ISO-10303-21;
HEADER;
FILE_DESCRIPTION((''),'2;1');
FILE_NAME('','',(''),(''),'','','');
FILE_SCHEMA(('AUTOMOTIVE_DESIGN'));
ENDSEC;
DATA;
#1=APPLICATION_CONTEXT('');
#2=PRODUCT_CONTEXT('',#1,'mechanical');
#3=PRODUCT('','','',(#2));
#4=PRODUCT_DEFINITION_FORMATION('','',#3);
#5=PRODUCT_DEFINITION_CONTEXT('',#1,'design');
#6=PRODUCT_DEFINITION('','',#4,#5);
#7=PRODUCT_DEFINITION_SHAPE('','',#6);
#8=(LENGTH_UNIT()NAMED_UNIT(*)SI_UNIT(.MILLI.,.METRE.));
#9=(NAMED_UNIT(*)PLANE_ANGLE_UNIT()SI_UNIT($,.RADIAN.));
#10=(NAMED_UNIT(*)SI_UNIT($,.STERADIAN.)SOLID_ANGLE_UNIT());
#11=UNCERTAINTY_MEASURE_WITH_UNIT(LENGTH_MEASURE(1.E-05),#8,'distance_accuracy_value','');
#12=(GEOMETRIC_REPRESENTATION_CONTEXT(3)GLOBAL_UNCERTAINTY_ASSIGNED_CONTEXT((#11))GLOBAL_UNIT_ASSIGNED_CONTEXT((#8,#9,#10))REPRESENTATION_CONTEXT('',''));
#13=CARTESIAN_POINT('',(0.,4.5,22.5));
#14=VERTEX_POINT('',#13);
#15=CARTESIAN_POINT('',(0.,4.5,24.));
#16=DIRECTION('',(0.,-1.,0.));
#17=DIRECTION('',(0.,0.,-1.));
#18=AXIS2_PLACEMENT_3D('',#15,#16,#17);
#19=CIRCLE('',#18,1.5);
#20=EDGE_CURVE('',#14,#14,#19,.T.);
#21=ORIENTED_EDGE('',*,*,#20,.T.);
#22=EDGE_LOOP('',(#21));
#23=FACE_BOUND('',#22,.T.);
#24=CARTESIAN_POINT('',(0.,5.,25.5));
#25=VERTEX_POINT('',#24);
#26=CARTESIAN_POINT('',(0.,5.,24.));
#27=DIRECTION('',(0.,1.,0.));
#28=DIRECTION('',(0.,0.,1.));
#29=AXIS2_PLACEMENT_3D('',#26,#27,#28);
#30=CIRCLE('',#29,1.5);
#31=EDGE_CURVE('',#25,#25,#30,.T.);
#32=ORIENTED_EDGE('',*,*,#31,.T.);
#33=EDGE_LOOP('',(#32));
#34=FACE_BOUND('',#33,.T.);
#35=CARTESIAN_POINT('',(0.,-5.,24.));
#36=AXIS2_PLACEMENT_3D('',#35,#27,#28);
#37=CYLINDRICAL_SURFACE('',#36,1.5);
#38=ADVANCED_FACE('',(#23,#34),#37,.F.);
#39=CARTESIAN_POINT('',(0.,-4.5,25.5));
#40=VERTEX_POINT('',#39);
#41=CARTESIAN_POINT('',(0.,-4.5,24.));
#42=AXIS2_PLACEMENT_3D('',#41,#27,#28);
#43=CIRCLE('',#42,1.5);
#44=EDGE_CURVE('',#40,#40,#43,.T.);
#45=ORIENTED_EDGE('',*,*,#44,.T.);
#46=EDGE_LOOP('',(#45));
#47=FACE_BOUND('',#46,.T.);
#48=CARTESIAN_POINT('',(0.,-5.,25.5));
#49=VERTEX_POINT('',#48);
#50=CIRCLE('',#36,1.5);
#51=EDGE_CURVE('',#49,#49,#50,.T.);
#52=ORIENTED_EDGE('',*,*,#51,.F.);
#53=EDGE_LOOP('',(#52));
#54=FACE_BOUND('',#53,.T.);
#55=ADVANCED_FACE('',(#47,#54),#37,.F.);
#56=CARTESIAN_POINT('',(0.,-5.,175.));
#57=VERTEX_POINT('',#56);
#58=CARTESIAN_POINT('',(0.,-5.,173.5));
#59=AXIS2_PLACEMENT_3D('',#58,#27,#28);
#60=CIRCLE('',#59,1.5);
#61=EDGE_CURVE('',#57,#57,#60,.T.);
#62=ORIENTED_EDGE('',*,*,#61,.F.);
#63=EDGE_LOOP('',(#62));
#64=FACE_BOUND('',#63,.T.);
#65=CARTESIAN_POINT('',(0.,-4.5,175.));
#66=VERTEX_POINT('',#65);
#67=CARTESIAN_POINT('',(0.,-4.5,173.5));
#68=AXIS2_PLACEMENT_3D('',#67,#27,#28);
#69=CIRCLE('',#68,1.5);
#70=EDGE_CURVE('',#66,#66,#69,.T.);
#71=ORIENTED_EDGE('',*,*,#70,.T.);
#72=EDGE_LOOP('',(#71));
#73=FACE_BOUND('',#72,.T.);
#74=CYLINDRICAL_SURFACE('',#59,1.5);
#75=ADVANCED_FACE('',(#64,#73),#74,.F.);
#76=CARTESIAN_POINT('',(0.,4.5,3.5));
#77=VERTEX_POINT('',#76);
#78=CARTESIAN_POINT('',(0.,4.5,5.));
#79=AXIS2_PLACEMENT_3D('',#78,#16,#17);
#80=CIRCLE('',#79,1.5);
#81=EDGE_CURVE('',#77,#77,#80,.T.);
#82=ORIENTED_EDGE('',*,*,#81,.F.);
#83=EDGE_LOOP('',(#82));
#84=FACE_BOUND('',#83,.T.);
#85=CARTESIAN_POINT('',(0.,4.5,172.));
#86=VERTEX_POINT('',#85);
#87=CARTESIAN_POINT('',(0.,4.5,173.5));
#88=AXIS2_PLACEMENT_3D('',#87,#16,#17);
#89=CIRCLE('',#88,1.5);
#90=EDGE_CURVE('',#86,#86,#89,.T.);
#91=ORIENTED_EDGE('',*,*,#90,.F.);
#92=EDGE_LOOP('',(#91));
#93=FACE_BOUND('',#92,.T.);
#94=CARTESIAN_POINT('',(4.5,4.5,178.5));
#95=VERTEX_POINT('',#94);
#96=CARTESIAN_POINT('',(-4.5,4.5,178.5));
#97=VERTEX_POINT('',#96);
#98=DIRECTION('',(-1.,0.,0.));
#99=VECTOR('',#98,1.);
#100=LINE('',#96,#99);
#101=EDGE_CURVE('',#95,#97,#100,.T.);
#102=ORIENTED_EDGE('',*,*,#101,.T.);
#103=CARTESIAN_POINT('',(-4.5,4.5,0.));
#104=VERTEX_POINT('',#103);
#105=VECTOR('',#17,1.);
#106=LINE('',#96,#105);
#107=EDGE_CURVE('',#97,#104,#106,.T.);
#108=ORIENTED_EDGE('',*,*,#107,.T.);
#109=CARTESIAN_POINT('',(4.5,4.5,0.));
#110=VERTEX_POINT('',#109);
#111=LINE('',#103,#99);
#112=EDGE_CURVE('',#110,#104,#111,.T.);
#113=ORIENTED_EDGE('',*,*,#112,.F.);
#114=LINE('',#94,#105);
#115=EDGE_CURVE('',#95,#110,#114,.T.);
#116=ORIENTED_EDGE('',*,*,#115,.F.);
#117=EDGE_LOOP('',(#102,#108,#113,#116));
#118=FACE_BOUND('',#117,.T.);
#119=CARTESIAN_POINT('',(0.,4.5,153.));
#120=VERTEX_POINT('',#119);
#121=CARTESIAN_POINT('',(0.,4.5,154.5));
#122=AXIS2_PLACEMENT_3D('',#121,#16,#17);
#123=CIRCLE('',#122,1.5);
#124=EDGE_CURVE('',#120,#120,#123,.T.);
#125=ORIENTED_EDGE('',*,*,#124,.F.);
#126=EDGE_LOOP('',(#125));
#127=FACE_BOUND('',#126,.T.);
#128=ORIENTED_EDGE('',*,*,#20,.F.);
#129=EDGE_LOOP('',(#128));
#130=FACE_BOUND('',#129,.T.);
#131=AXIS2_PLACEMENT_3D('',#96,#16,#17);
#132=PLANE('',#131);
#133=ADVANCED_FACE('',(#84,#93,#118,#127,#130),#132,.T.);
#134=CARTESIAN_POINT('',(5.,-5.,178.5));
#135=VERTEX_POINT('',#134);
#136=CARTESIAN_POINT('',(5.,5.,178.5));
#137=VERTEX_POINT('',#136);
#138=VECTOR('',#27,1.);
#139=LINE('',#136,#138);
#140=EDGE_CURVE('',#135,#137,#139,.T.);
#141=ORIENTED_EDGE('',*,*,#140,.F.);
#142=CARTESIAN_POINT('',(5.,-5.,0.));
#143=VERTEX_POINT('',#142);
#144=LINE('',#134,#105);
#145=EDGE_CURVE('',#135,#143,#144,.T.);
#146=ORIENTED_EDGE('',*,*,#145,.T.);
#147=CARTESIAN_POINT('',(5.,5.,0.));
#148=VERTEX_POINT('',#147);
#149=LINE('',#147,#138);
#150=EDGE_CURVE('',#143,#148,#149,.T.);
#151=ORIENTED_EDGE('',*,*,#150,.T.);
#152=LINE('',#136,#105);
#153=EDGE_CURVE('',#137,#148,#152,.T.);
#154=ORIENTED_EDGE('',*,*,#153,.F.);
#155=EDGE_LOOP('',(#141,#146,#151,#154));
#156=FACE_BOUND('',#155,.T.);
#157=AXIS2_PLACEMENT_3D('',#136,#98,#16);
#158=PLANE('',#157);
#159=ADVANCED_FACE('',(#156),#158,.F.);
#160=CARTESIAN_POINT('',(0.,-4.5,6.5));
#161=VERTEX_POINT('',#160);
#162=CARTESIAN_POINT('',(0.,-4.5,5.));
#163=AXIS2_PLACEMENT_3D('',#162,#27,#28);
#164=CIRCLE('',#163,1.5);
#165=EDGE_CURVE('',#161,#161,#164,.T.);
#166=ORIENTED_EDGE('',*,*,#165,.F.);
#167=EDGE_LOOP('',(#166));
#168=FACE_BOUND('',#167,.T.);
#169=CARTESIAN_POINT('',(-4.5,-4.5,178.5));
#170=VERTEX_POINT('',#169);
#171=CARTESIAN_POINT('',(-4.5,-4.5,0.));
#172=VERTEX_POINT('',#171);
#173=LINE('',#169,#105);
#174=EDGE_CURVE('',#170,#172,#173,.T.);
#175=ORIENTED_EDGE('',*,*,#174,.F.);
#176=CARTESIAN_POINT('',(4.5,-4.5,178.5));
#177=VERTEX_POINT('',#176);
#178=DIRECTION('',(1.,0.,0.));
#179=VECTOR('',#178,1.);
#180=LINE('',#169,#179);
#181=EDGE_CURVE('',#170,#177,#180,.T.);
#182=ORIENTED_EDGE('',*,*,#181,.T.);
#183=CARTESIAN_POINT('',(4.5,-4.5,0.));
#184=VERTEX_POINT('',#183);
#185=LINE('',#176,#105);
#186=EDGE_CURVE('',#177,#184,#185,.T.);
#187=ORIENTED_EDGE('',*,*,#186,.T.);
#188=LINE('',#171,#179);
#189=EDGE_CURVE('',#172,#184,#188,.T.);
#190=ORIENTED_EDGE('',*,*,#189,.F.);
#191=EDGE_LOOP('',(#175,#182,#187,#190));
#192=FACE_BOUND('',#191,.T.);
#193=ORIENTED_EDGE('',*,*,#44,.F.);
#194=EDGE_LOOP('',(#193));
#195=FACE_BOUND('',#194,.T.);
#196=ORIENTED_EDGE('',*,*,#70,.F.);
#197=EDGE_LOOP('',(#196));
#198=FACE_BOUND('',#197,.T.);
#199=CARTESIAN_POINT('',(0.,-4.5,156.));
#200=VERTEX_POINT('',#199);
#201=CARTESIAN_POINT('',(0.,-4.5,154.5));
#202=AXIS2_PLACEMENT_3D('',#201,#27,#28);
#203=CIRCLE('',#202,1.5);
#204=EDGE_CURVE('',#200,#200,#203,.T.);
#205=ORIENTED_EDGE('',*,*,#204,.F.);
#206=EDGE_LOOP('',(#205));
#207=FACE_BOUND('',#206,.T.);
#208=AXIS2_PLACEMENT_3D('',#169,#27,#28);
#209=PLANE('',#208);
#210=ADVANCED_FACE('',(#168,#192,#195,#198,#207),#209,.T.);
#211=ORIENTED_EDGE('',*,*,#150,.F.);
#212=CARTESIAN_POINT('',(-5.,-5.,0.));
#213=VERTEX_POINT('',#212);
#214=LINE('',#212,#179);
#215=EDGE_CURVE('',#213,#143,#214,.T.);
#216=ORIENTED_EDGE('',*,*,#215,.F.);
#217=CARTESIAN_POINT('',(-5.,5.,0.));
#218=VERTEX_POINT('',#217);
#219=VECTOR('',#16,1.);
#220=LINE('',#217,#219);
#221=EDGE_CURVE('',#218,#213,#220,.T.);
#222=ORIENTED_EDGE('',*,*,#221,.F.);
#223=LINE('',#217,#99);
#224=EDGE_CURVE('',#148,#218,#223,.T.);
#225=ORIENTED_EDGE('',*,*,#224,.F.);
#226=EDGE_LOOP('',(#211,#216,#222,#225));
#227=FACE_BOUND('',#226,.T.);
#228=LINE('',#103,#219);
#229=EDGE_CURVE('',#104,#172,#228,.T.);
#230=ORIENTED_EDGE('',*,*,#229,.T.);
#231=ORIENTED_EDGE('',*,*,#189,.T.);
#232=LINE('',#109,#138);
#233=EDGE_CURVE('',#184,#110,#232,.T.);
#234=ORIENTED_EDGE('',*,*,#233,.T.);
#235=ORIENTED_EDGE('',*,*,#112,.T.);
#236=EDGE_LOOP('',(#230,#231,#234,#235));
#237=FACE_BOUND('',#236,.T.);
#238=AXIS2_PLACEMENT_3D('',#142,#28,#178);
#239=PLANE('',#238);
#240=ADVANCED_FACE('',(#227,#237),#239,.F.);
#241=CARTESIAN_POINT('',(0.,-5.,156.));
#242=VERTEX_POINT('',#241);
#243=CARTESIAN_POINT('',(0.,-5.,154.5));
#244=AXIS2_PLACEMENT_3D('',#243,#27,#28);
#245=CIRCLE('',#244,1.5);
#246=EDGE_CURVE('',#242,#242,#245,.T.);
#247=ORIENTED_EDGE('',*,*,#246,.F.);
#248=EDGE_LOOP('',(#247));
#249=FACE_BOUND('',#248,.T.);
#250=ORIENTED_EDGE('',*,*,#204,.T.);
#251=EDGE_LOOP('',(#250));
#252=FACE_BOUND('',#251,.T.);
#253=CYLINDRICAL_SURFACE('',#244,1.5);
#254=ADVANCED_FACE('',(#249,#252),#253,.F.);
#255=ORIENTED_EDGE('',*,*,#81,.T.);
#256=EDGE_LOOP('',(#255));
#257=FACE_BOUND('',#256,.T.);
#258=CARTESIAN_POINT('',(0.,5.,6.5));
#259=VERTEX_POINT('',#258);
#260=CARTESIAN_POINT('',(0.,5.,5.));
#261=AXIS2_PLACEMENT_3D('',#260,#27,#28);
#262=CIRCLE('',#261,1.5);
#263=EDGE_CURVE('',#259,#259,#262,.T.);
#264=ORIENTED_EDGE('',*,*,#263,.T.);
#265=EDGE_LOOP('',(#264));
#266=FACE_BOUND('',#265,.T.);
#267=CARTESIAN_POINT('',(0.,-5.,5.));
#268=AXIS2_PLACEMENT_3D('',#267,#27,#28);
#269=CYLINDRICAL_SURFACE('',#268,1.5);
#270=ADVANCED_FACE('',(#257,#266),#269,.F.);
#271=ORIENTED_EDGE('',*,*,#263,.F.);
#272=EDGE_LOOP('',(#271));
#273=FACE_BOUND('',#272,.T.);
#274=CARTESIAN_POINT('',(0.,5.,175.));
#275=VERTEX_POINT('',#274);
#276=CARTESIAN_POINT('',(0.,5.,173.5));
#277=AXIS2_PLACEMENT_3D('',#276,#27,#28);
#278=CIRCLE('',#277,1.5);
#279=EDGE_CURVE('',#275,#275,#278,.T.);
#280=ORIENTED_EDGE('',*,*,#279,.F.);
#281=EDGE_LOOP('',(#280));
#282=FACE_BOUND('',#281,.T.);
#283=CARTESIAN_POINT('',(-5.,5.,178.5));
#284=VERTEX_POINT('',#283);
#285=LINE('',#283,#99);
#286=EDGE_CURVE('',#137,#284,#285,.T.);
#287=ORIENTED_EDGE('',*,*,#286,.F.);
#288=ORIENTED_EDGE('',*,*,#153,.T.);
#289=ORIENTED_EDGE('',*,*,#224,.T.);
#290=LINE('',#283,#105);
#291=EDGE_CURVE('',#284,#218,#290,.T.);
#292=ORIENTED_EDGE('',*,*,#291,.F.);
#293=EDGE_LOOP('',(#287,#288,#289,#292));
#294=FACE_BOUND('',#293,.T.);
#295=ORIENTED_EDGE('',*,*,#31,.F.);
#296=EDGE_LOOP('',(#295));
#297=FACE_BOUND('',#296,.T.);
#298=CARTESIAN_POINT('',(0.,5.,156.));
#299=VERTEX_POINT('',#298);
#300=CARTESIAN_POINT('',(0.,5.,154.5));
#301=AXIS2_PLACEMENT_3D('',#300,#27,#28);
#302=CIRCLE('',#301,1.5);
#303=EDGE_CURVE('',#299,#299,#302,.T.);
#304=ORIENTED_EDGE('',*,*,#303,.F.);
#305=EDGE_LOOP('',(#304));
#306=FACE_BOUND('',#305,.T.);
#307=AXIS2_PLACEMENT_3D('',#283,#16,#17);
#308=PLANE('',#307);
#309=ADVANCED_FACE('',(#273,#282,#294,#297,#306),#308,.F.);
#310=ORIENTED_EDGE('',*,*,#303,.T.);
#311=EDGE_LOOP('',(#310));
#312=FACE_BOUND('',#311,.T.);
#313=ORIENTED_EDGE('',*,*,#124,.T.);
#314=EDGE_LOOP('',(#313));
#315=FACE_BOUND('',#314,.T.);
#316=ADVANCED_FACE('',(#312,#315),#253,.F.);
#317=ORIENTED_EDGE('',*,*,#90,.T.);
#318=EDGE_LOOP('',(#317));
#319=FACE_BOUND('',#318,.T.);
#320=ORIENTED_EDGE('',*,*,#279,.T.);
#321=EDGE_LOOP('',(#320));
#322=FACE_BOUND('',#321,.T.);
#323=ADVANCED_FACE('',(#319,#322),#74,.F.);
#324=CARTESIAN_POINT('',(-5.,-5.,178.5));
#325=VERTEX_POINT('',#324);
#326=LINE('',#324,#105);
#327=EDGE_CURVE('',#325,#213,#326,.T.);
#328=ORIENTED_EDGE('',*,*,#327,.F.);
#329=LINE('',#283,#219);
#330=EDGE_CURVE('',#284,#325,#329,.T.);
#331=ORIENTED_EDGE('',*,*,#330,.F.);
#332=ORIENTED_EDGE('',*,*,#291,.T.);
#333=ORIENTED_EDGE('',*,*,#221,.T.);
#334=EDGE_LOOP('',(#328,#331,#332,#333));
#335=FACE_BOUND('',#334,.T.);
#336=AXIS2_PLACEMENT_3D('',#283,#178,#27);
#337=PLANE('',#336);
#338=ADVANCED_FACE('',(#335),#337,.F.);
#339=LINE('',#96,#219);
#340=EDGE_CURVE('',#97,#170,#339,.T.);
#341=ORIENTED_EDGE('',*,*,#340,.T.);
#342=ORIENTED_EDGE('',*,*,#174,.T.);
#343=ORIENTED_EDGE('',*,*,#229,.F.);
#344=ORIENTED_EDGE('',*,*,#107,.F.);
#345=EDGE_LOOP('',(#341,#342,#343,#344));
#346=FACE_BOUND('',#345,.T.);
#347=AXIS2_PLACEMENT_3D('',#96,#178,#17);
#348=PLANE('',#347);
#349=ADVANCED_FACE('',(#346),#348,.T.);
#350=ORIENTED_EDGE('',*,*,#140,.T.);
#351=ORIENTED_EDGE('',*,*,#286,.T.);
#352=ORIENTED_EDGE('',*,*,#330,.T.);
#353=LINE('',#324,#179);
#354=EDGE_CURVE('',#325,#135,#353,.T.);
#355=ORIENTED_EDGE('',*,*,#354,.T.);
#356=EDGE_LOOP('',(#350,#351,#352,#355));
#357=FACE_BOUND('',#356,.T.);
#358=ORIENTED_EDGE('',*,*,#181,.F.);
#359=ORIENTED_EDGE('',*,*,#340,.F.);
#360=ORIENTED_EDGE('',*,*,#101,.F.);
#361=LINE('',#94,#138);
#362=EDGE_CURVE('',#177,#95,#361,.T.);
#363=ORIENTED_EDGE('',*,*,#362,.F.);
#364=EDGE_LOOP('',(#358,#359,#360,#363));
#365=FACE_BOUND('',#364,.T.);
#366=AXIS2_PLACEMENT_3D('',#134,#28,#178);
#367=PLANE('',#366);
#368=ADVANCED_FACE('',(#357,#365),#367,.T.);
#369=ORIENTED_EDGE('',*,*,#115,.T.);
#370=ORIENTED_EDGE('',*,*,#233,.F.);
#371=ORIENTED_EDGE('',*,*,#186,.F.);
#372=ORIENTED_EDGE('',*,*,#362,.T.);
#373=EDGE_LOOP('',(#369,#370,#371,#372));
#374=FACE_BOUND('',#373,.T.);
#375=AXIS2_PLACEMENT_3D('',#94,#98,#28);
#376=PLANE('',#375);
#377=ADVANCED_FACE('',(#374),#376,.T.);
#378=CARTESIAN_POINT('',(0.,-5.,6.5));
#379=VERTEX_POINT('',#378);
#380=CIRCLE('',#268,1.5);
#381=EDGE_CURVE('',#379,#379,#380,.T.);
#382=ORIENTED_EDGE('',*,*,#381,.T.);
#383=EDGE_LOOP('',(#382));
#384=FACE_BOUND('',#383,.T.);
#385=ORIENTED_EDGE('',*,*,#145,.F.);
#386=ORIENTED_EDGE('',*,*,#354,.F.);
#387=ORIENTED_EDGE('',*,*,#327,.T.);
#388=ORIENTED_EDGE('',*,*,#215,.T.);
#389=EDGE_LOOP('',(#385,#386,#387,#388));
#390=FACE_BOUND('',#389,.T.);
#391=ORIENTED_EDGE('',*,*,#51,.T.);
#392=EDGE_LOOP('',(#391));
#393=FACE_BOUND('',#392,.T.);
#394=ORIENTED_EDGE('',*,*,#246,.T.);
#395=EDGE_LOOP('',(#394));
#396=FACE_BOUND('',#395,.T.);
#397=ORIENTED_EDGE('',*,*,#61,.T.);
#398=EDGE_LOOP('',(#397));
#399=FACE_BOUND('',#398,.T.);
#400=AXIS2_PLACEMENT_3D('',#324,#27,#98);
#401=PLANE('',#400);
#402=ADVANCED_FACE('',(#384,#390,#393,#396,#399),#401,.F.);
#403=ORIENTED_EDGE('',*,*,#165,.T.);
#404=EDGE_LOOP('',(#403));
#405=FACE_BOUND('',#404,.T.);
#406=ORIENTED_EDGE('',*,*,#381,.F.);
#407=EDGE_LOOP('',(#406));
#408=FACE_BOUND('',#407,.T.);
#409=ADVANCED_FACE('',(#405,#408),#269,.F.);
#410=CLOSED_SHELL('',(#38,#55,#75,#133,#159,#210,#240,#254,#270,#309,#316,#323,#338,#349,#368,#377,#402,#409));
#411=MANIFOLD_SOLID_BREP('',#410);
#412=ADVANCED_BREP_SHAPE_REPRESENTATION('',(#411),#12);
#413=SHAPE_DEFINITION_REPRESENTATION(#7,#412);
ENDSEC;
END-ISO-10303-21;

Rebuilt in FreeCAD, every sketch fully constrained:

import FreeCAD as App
import Part
import Sketcher
Q = App.Units.Quantity


def add_polygon(sketch, points):
    """Adds a closed chain of lines whose ends are joined by coincident constraints."""
    first, n = sketch.GeometryCount, len(points)
    for a, b in zip(points, points[1:] + points[:1]):
        sketch.addGeometry(Part.LineSegment(App.Vector(*a, 0), App.Vector(*b, 0)), False)
    for i in range(n):
        sketch.addConstraint(Sketcher.Constraint("Coincident", first + i, 2, first + (i + 1) % n, 1))

doc = App.newDocument("Part")
params = doc.addObject("Spreadsheet::Sheet", "Params")
for row, (alias, value) in enumerate([
    ("sketch1_width", "10 mm"),
    ("sketch1_width2", "9 mm"),
    ("pad1_length", "178.5 mm"),
    ("sketch2_diameter", "3 mm"),
], start=1):
    params.set(f"A{row}", alias)
    params.set(f"B{row}", "=" + value)
    params.setAlias(f"B{row}", alias)

body = doc.addObject("PartDesign::Body", "Body")

# Sketch on XY plane
sketch1 = body.newObject("Sketcher::SketchObject", "Sketch")
sketch1.AttachmentSupport = (doc.getObject("XY_Plane"), [""])
sketch1.MapMode = "FlatFace"
add_polygon(sketch1, [(-5, 5), (-5, -5), (5, -5), (5, 5)])  # lines 0-3
add_polygon(sketch1, [(4.5, -4.5), (-4.5, -4.5), (-4.5, 4.5), (4.5, 4.5)])  # lines 4-7
sketch1.addConstraint([
    Sketcher.Constraint("Vertical", 0),
    Sketcher.Constraint("Horizontal", 1),
    Sketcher.Constraint("Vertical", 2),
    Sketcher.Constraint("Horizontal", 3),
    Sketcher.Constraint("Horizontal", 4),
    Sketcher.Constraint("Vertical", 5),
    Sketcher.Constraint("Horizontal", 6),
    Sketcher.Constraint("Vertical", 7),
    Sketcher.Constraint("Symmetric", 0, 2, 2, 2, -1, 1),
    Sketcher.Constraint("Symmetric", 4, 2, 6, 2, -1, 1),
    Sketcher.Constraint("Equal", 3, 0),
    Sketcher.Constraint("Equal", 6, 5),
    Sketcher.Constraint("DistanceX", 1, 1, 1, 2, Q("10 mm")),
    Sketcher.Constraint("DistanceX", 4, 2, 4, 1, Q("9 mm")),
])
sketch1.setExpression("Constraints[20]", "Params.sketch1_width")
sketch1.setExpression("Constraints[21]", "Params.sketch1_width2")
pad1 = body.newObject("PartDesign::Pad", "Pad")
pad1.Profile = sketch1
pad1.setExpression("Length", "Params.pad1_length")

# Sketch on XZ plane
sketch2 = body.newObject("Sketcher::SketchObject", "Sketch001")
sketch2.AttachmentSupport = (doc.getObject("XZ_Plane"), [""])
sketch2.MapMode = "FlatFace"
sketch2.AttachmentOffset = App.Placement(App.Vector(0, 0, -5), App.Rotation())
sketch2.addGeometry([
    Part.Circle(App.Vector(0, 5, 0), App.Vector(0, 0, 1), 1.5),
    Part.Circle(App.Vector(0, 24, 0), App.Vector(0, 0, 1), 1.5),
    Part.Circle(App.Vector(0, 154.5, 0), App.Vector(0, 0, 1), 1.5),
    Part.Circle(App.Vector(0, 173.5, 0), App.Vector(0, 0, 1), 1.5),
], False)
sketch2.addConstraint([
    Sketcher.Constraint("Equal", 0, 1),
    Sketcher.Constraint("Equal", 1, 2),
    Sketcher.Constraint("Equal", 2, 3),
    Sketcher.Constraint("PointOnObject", 0, 3, -2),
    Sketcher.Constraint("PointOnObject", 1, 3, -2),
    Sketcher.Constraint("PointOnObject", 2, 3, -2),
    Sketcher.Constraint("PointOnObject", 3, 3, -2),
    Sketcher.Constraint("Diameter", 0, Q("3 mm")),
    Sketcher.Constraint("DistanceY", -1, 1, 0, 3, Q("5 mm")),
    Sketcher.Constraint("DistanceY", -1, 1, 1, 3, Q("24 mm")),
    Sketcher.Constraint("DistanceY", 2, 3, 3, 3, Q("19 mm")),
    Sketcher.Constraint("DistanceY", -1, 1, 2, 3, Q("154.5 mm")),
])
sketch2.setExpression("Constraints[7]", "Params.sketch2_diameter")
pocket1 = body.newObject("PartDesign::Pocket", "Pocket")
pocket1.Profile = sketch2
pocket1.Type = "ThroughAll"
pocket1.Reversed = True

doc.recompute()
